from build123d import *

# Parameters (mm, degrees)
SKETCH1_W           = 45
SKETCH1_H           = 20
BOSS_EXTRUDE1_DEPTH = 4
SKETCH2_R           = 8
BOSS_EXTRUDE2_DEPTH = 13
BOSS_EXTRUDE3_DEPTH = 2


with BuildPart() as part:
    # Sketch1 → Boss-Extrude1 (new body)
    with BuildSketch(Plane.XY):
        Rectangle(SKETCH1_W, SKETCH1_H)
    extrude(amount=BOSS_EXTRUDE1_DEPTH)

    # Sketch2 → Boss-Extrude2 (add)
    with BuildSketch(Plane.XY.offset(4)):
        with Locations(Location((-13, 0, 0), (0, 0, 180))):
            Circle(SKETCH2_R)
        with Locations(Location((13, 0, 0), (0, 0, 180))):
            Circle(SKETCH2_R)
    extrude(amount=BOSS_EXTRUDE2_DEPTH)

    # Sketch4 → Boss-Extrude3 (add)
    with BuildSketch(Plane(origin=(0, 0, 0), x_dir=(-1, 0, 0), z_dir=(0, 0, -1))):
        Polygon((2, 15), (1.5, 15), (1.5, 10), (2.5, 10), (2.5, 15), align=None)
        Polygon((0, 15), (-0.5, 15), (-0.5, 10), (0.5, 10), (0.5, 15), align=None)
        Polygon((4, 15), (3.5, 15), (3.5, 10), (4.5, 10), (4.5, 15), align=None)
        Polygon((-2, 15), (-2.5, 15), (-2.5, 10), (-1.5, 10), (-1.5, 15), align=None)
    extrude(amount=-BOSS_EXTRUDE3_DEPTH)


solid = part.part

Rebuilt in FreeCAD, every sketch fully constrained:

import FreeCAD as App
import Part
import Sketcher
from FreeCAD import Vector
Q = App.Units.Quantity


def add_polygon(sketch, points):
    """Adds a closed chain of lines whose ends are joined by coincident constraints."""
    first, n = sketch.GeometryCount, len(points)
    for a, b in zip(points, points[1:] + points[:1]):
        sketch.addGeometry(Part.LineSegment(App.Vector(*a, 0), App.Vector(*b, 0)), False)
    for i in range(n):
        sketch.addConstraint(Sketcher.Constraint("Coincident", first + i, 2, first + (i + 1) % n, 1))

doc = App.newDocument("Part")
body = doc.addObject("PartDesign::Body", "Body")

# Sketch on XY plane
sketch1 = body.newObject("Sketcher::SketchObject", "Sketch")
sketch1.AttachmentSupport = (doc.getObject("XY_Plane"), [""])
sketch1.MapMode = "FlatFace"
add_polygon(sketch1, [(-22.5, 10), (-22.5, -10), (22.5, -10), (22.5, 10)])  # lines 0-3
sketch1.addConstraint(Sketcher.Constraint("Vertical", 0))
sketch1.addConstraint(Sketcher.Constraint("Horizontal", 1))
sketch1.addConstraint(Sketcher.Constraint("Vertical", 2))
sketch1.addConstraint(Sketcher.Constraint("Horizontal", 3))
sketch1.addConstraint(Sketcher.Constraint("Symmetric", 0, 2, 2, 2, -1, 1))
sketch1.addConstraint(Sketcher.Constraint("DistanceX", 1, 1, 1, 2, Q("45 mm")))
sketch1.addConstraint(Sketcher.Constraint("DistanceY", 0, 2, 0, 1, Q("20 mm")))
pad1 = body.newObject("PartDesign::Pad", "Pad")
pad1.Profile = sketch1
pad1.Length = 4

# Sketch on XY plane
sketch2 = body.newObject("Sketcher::SketchObject", "Sketch001")
sketch2.AttachmentSupport = (doc.getObject("XY_Plane"), [""])
sketch2.MapMode = "FlatFace"
sketch2.AttachmentOffset = App.Placement(Vector(0, 0, 4), App.Rotation())
sketch2.addGeometry(Part.Circle(Vector(-13, 0, 0), Vector(0, 0, 1), 8), False)
sketch2.addGeometry(Part.Circle(Vector(13, 0, 0), Vector(0, 0, 1), 8), False)
sketch2.addConstraint(Sketcher.Constraint("Equal", 0, 1))
sketch2.addConstraint(Sketcher.Constraint("Symmetric", 0, 3, 1, 3, -1, 1))
sketch2.addConstraint(Sketcher.Constraint("PointOnObject", 0, 3, -1))
sketch2.addConstraint(Sketcher.Constraint("Diameter", 0, Q("16 mm")))
sketch2.addConstraint(Sketcher.Constraint("DistanceX", 0, 3, -1, 1, Q("13 mm")))
pad2 = body.newObject("PartDesign::Pad", "Pad001")
pad2.Profile = sketch2
pad2.Length = 13

# Sketch on XY plane
sketch3 = body.newObject("Sketcher::SketchObject", "Sketch002")
sketch3.AttachmentSupport = (doc.getObject("XY_Plane"), [""])
sketch3.MapMode = "FlatFace"
add_polygon(sketch3, [(-1.5, 15), (-1.5, 10), (-2.5, 10), (-2.5, 15)])  # lines 0-3
add_polygon(sketch3, [(0.5, 15), (0.5, 10), (-0.5, 10), (-0.5, 15)])  # lines 4-7
add_polygon(sketch3, [(-3.5, 15), (-3.5, 10), (-4.5, 10), (-4.5, 15)])  # lines 8-11
add_polygon(sketch3, [(2.5, 15), (2.5, 10), (1.5, 10), (1.5, 15)])  # lines 12-15
sketch3.addConstraint(Sketcher.Constraint("Vertical", 0))
sketch3.addConstraint(Sketcher.Constraint("Horizontal", 1))
sketch3.addConstraint(Sketcher.Constraint("Vertical", 2))
sketch3.addConstraint(Sketcher.Constraint("Horizontal", 3))
sketch3.addConstraint(Sketcher.Constraint("Vertical", 4))
sketch3.addConstraint(Sketcher.Constraint("Horizontal", 5))
sketch3.addConstraint(Sketcher.Constraint("Vertical", 6))
sketch3.addConstraint(Sketcher.Constraint("Horizontal", 7))
sketch3.addConstraint(Sketcher.Constraint("Vertical", 8))
sketch3.addConstraint(Sketcher.Constraint("Horizontal", 9))
sketch3.addConstraint(Sketcher.Constraint("Vertical", 10))
sketch3.addConstraint(Sketcher.Constraint("Horizontal", 11))
sketch3.addConstraint(Sketcher.Constraint("Vertical", 12))
sketch3.addConstraint(Sketcher.Constraint("Horizontal", 13))
sketch3.addConstraint(Sketcher.Constraint("Vertical", 14))
sketch3.addConstraint(Sketcher.Constraint("Horizontal", 15))
sketch3.addConstraint(Sketcher.Constraint("Symmetric", 1, 2, 12, 2, -2))
sketch3.addConstraint(Sketcher.Constraint("Symmetric", 3, 2, 14, 2, -2))
sketch3.addConstraint(Sketcher.Constraint("Horizontal", 1, 2, 4, 2))
sketch3.addConstraint(Sketcher.Constraint("Horizontal", 3, 2, 6, 2))
sketch3.addConstraint(Sketcher.Constraint("Horizontal", 5, 2, 8, 2))
sketch3.addConstraint(Sketcher.Constraint("Horizontal", 7, 2, 10, 2))
sketch3.addConstraint(Sketcher.Constraint("Equal", 3, 5))
sketch3.addConstraint(Sketcher.Constraint("Equal", 7, 9))
sketch3.addConstraint(Sketcher.Constraint("DistanceX", 1, 2, 1, 1, Q("1 mm")))
sketch3.addConstraint(Sketcher.Constraint("DistanceY", 0, 2, 0, 1, Q("5 mm")))
sketch3.addConstraint(Sketcher.Constraint("DistanceY", -1, 1, 0, 2, Q("10 mm")))
sketch3.addConstraint(Sketcher.Constraint("DistanceX", 0, 2, 4, 2, Q("2 mm")))
sketch3.addConstraint(Sketcher.Constraint("DistanceX", 8, 2, 1, 2, Q("1 mm")))
sketch3.addConstraint(Sketcher.Constraint("DistanceX", 4, 2, 12, 2, Q("2 mm")))
pad3 = body.newObject("PartDesign::Pad", "Pad002")
pad3.Profile = sketch3
pad3.Length = 2

doc.recompute()
